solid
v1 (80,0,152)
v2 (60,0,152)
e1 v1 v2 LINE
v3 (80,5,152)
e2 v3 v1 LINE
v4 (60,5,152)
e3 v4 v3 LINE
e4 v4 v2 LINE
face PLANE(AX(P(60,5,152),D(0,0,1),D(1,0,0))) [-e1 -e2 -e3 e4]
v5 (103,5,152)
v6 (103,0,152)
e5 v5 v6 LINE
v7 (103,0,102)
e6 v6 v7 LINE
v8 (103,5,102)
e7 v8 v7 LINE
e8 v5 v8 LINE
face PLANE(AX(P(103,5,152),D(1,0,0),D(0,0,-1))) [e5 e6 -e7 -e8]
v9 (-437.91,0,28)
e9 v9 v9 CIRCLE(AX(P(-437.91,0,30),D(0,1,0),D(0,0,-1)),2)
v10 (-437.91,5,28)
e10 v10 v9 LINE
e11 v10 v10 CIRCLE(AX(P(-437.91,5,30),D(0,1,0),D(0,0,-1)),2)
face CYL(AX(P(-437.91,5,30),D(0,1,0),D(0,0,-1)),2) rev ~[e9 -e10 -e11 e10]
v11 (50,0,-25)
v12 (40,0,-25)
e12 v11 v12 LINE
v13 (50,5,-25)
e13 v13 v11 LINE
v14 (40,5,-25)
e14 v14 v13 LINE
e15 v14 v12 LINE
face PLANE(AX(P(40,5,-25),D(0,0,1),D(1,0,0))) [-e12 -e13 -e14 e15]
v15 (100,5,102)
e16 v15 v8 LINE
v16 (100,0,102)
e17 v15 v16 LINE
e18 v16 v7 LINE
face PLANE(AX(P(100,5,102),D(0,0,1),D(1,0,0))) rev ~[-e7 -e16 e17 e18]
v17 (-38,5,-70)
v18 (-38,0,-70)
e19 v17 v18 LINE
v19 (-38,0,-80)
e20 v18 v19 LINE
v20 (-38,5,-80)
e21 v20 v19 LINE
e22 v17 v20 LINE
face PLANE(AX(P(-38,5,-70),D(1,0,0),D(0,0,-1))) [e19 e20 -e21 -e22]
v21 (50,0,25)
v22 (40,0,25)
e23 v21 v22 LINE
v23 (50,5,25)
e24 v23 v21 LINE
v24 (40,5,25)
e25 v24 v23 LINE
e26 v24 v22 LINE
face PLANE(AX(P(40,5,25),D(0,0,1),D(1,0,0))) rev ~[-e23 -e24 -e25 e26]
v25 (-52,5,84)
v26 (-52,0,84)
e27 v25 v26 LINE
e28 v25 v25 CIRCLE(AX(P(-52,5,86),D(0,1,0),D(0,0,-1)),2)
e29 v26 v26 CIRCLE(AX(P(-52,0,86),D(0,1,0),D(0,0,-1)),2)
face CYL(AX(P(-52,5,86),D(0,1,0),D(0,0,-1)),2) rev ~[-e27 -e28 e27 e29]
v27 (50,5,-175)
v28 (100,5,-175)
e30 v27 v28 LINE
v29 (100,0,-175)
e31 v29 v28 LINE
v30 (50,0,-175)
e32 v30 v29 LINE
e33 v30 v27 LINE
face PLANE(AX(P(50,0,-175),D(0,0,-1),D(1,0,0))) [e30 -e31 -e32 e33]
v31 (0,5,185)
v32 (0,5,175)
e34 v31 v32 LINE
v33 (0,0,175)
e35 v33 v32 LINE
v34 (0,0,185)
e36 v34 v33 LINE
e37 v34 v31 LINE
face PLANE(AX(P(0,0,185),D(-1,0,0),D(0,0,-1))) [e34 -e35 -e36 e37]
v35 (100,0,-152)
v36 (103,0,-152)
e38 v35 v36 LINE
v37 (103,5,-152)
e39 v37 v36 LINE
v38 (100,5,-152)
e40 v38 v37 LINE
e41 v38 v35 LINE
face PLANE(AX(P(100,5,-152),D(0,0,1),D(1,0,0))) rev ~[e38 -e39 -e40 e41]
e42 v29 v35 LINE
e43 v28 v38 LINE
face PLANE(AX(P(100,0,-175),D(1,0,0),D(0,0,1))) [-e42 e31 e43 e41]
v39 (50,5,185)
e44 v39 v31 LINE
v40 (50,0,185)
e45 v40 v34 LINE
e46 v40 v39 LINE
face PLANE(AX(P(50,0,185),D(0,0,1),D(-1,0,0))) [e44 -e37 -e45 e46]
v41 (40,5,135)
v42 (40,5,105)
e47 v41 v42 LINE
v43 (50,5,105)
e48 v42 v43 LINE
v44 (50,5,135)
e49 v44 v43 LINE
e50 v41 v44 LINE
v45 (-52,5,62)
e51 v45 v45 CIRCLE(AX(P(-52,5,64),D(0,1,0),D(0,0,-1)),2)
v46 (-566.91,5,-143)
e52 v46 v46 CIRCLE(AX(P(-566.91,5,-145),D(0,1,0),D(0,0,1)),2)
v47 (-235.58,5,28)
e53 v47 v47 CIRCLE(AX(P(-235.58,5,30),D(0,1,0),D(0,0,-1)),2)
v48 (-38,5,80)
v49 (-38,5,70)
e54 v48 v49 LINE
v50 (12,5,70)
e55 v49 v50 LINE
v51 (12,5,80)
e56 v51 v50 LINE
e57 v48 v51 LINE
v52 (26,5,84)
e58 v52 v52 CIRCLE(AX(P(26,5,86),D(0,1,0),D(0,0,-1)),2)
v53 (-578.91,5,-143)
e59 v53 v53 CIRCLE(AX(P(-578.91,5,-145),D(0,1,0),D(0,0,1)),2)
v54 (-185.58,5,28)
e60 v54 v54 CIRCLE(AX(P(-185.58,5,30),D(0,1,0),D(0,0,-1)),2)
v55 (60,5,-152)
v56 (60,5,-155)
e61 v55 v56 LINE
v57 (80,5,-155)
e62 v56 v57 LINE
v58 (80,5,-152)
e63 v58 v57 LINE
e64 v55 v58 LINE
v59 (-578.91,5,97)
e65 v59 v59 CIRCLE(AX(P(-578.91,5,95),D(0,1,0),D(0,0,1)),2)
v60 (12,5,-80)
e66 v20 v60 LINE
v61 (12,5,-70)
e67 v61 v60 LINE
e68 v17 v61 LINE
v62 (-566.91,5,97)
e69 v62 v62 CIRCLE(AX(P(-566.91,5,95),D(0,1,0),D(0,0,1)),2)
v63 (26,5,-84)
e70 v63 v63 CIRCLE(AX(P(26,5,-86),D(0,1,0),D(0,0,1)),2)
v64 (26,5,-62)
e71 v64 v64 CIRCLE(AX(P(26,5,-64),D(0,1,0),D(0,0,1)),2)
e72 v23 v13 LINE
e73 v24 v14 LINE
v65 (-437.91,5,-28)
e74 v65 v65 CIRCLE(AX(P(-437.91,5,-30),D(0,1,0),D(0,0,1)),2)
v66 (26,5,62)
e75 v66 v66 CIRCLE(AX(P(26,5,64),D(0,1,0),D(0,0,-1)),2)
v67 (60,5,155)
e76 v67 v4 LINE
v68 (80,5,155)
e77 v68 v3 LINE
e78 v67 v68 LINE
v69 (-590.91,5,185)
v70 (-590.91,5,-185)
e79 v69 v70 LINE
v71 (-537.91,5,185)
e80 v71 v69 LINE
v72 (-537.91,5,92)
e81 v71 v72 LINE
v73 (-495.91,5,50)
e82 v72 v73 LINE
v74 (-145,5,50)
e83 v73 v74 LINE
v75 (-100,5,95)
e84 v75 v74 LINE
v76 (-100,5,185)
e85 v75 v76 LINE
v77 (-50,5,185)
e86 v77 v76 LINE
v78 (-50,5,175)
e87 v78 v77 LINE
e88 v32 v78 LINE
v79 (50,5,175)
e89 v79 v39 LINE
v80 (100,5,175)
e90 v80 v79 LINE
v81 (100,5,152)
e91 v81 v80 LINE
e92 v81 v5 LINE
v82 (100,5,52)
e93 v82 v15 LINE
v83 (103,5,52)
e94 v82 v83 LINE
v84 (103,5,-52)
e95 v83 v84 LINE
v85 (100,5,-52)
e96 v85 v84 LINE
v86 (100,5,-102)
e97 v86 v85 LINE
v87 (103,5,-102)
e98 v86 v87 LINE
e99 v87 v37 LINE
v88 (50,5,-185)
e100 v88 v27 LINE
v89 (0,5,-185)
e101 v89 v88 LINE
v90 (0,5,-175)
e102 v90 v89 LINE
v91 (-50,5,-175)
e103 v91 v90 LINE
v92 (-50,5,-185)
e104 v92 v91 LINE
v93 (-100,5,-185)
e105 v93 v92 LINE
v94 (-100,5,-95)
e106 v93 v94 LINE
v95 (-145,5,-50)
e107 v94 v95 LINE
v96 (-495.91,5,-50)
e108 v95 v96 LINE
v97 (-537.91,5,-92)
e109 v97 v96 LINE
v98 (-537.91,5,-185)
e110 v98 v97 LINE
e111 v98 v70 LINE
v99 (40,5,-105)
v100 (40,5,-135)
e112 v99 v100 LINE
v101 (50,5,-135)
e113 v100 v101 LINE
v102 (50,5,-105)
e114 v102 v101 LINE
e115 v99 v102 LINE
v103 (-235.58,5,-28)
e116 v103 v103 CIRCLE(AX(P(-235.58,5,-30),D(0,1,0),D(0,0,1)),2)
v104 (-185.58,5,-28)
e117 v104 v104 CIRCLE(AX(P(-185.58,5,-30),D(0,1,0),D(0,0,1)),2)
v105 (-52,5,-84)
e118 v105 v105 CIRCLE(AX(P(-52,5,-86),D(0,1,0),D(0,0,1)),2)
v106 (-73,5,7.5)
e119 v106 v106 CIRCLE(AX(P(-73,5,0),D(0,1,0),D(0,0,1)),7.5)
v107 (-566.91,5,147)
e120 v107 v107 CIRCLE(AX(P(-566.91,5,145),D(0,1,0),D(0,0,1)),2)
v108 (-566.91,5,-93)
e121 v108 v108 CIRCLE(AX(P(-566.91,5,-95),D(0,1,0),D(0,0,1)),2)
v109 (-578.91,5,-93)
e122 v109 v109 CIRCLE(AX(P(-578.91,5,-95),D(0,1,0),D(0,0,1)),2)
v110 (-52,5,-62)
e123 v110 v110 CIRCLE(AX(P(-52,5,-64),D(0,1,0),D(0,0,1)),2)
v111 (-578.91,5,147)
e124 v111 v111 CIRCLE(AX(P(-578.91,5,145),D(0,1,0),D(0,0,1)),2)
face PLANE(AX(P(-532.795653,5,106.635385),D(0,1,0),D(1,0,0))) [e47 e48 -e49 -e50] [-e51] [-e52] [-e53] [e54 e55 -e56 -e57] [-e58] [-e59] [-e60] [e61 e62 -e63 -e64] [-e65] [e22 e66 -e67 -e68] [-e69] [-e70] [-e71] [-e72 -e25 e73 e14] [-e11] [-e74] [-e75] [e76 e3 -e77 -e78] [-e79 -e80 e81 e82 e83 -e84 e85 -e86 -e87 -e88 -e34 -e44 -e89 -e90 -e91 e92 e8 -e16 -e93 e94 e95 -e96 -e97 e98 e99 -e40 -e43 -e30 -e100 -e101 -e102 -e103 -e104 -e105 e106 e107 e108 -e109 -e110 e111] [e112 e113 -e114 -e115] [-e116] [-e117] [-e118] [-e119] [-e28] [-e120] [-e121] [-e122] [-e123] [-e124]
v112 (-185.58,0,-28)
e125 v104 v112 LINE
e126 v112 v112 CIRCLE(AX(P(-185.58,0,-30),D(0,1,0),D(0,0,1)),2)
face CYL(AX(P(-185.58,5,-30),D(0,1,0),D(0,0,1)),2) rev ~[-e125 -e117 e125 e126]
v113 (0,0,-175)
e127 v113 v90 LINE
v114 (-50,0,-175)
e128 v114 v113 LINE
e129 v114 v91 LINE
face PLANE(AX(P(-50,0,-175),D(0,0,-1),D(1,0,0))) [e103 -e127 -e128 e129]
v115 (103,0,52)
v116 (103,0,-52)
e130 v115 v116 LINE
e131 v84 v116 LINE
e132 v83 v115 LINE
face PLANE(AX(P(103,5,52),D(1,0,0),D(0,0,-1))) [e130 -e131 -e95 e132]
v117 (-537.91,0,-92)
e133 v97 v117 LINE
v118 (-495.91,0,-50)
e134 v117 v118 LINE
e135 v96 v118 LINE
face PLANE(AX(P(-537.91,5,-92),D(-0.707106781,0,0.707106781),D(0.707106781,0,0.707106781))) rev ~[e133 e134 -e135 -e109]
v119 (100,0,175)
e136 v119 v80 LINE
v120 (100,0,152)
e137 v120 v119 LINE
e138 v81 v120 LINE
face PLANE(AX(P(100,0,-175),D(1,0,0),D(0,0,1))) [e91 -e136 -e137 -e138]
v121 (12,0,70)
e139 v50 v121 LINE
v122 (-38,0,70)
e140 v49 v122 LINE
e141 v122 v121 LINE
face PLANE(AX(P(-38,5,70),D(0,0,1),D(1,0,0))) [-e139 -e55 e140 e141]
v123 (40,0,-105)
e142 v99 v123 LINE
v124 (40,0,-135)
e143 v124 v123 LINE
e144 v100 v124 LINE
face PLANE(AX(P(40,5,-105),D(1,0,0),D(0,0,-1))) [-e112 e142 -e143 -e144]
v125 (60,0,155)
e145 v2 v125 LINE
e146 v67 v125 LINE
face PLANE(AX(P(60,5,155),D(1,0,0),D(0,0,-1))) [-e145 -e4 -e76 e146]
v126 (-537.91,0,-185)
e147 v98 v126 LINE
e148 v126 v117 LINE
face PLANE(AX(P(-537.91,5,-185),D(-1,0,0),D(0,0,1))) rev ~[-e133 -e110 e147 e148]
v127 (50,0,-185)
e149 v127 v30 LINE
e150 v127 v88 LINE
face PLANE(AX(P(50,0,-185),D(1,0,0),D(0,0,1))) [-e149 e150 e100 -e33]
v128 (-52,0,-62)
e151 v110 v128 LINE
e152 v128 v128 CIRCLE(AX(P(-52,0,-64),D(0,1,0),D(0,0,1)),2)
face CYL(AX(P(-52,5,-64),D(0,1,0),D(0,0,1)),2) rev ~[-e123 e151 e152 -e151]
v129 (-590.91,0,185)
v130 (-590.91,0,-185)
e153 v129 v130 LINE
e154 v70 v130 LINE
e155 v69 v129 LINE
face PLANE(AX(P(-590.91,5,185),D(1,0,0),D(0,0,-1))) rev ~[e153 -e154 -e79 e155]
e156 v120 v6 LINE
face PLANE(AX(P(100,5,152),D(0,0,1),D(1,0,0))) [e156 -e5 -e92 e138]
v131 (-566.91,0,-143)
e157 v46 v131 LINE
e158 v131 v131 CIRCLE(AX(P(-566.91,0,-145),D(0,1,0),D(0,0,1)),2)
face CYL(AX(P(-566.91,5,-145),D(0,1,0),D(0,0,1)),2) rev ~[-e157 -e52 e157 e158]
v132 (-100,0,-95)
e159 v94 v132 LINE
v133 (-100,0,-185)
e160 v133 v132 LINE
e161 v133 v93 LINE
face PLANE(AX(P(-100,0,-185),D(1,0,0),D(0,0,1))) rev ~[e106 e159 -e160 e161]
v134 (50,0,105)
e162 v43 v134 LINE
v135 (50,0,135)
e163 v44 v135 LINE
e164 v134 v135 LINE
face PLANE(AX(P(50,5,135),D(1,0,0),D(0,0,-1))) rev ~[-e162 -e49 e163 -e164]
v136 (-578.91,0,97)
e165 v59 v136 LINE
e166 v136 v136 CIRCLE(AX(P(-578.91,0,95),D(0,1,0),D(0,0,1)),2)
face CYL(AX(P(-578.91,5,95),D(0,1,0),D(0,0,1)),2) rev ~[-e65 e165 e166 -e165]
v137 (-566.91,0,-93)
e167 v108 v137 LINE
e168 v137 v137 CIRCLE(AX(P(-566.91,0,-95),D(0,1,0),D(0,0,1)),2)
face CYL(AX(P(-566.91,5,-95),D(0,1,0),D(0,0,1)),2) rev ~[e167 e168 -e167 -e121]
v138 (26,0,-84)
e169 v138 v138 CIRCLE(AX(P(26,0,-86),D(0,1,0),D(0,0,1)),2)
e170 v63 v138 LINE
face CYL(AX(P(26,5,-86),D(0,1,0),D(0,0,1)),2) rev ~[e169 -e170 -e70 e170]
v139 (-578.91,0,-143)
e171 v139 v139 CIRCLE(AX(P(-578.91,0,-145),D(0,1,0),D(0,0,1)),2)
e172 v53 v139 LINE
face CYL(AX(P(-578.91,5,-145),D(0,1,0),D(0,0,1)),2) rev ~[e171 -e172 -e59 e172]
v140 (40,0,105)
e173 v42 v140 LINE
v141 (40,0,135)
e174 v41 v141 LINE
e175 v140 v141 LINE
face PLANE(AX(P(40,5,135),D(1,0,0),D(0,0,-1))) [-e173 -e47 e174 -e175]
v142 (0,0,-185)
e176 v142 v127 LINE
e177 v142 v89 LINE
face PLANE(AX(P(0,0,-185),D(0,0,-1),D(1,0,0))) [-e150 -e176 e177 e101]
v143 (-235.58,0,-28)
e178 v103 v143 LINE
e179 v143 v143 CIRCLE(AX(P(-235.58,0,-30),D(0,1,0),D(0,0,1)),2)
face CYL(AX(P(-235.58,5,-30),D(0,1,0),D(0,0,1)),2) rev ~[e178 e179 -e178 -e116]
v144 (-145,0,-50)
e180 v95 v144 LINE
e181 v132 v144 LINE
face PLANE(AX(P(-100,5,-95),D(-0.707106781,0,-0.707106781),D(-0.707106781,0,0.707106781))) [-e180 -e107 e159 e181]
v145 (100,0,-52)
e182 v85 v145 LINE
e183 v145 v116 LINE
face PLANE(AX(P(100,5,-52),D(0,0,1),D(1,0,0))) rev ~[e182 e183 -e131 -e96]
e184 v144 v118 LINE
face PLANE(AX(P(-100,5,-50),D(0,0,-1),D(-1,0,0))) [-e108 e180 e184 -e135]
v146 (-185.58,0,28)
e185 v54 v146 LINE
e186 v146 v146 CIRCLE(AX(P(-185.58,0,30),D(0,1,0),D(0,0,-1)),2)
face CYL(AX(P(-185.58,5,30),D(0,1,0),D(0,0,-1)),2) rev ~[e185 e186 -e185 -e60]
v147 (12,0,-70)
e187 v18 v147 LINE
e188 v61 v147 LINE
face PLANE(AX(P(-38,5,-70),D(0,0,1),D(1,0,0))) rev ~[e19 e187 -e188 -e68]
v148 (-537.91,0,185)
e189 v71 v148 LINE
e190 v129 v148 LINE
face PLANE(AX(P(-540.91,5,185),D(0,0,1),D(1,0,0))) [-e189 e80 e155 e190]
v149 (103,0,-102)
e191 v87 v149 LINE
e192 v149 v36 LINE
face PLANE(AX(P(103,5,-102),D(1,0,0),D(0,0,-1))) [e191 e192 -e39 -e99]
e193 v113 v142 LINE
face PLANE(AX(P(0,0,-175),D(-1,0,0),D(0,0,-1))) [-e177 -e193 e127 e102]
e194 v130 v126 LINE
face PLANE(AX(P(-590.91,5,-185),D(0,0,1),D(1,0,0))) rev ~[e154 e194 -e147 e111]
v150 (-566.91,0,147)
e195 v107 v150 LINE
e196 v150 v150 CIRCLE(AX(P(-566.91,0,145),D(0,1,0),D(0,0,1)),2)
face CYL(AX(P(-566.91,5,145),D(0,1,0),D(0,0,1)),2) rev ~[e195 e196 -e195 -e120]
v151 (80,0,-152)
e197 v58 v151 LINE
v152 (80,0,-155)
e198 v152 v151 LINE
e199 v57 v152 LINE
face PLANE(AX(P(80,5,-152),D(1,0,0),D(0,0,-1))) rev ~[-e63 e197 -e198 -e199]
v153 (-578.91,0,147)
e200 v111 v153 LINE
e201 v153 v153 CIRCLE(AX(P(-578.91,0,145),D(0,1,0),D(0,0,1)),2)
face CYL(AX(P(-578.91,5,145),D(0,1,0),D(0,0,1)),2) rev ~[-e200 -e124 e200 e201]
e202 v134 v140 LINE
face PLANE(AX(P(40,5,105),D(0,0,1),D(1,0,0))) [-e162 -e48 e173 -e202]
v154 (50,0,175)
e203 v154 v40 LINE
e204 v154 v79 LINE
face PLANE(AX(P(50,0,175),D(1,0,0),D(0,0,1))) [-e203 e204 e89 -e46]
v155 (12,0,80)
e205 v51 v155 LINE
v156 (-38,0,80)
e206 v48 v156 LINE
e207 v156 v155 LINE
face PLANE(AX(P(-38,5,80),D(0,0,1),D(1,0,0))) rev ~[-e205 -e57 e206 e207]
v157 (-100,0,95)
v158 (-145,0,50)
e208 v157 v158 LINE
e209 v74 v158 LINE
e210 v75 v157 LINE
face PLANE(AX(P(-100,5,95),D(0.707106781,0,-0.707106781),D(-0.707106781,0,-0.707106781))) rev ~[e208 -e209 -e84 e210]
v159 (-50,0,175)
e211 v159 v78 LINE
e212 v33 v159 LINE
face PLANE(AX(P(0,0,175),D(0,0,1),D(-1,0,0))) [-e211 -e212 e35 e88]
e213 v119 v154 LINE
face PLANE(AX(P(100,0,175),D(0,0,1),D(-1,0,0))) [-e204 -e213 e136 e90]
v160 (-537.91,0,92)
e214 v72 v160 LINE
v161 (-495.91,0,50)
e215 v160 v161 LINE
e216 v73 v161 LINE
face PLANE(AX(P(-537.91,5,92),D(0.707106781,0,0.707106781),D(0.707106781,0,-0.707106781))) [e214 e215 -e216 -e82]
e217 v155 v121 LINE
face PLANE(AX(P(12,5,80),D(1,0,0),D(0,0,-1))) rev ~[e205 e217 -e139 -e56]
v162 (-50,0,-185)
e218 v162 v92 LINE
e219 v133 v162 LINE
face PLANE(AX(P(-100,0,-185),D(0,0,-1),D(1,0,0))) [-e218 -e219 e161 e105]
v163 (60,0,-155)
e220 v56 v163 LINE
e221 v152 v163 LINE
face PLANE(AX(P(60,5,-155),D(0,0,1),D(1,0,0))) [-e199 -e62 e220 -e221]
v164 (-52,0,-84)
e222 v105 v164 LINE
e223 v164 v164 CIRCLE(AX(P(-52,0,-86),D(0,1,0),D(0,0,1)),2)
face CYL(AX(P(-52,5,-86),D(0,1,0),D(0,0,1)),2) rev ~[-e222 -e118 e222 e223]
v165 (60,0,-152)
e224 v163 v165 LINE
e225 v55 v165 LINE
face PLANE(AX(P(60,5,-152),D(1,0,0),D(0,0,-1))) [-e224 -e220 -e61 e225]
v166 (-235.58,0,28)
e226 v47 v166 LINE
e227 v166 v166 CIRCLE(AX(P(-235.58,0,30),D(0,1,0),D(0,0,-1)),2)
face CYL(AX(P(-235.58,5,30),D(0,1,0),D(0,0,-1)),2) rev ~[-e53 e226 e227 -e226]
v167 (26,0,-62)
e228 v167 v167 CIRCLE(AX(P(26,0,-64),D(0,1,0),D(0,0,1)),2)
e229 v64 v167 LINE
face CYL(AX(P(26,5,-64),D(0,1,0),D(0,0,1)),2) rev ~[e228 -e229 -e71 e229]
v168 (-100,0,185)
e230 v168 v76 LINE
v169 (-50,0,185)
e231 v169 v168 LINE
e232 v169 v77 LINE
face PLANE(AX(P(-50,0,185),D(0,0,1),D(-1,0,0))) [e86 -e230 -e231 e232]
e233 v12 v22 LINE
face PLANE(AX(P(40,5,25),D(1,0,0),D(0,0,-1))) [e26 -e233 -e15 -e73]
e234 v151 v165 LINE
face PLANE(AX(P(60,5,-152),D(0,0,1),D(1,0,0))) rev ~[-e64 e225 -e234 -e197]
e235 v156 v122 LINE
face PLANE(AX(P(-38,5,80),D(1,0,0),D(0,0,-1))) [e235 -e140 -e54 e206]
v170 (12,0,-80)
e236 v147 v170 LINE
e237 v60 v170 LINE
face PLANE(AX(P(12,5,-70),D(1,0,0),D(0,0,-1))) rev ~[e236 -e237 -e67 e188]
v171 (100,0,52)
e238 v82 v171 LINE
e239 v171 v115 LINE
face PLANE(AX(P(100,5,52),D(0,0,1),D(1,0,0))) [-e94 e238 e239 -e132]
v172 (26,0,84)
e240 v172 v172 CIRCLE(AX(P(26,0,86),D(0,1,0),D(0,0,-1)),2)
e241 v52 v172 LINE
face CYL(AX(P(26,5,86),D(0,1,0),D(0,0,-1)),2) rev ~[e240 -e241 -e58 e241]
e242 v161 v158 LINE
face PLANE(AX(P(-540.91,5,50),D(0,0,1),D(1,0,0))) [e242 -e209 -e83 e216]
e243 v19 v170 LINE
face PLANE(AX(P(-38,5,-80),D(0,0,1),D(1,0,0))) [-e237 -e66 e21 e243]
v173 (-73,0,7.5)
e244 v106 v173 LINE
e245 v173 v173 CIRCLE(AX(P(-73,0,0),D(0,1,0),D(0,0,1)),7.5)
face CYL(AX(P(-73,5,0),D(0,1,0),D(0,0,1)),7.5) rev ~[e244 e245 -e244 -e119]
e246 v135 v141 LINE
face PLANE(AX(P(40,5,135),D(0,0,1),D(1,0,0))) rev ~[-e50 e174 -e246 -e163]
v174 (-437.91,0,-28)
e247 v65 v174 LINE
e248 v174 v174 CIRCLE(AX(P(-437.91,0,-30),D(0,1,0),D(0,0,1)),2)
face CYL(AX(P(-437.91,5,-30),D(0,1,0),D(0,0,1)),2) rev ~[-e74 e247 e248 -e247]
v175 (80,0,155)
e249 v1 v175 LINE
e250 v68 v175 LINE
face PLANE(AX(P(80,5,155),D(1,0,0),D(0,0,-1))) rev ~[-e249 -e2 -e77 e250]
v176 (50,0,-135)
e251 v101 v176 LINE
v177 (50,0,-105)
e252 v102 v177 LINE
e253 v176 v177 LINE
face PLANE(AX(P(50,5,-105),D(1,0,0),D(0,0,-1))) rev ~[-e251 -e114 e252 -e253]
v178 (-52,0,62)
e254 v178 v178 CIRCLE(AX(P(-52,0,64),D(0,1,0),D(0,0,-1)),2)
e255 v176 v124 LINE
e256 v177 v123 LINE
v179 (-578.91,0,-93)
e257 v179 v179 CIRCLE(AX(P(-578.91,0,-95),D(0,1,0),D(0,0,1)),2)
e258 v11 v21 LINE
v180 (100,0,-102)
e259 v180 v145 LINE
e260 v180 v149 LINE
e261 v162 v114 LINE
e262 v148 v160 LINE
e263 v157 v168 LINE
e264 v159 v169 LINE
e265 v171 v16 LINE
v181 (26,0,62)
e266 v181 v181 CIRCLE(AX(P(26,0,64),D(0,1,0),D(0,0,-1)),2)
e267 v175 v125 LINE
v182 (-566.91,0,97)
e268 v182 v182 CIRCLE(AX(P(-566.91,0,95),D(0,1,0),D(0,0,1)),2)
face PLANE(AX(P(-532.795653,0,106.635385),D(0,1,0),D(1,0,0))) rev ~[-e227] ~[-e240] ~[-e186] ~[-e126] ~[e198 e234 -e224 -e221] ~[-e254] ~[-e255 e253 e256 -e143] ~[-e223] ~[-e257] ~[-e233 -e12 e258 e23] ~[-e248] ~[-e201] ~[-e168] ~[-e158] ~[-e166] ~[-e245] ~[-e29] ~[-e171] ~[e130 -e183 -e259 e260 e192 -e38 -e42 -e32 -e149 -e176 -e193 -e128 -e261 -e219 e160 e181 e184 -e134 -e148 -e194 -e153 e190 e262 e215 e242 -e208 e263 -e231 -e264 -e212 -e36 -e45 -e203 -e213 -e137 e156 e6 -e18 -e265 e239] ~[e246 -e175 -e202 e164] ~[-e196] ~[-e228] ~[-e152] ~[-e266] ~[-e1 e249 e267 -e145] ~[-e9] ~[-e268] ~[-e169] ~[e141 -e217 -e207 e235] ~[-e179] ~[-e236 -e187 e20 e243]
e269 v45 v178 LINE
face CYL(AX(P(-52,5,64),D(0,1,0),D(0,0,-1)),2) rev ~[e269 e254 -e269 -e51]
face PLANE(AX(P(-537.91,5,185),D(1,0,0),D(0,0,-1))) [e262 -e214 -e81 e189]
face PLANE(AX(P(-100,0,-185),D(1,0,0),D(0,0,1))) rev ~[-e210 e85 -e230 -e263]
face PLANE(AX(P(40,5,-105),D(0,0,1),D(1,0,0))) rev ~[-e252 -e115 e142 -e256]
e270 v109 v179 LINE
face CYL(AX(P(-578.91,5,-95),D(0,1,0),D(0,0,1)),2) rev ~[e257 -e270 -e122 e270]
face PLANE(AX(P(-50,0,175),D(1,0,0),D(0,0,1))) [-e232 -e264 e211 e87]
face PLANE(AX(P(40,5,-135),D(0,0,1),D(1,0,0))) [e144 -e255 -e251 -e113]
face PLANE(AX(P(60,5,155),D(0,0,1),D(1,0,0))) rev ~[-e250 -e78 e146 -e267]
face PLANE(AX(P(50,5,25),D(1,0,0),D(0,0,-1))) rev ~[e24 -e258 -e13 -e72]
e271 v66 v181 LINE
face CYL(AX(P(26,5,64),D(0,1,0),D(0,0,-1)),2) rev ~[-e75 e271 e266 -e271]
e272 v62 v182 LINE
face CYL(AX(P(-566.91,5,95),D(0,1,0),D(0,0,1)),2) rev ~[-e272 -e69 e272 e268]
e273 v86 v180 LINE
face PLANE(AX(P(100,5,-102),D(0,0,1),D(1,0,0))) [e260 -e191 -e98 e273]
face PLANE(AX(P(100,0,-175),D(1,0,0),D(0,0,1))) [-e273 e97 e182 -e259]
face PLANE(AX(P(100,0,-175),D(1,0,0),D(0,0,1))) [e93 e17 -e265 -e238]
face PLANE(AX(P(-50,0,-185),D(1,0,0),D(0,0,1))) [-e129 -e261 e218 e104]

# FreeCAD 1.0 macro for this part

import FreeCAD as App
import Part
import Sketcher
from FreeCAD import Vector
Q = App.Units.Quantity

doc = App.newDocument("Part")
body = doc.addObject("PartDesign::Body", "Body")

sketch1 = doc.addObject("Sketcher::SketchObject", "Sketch")
body.addObject(sketch1)
sketch1.AttachmentSupport = (doc.XZ_Plane, [""])
sketch1.MapMode = "FlatFace"
sketch1.addGeometry([
    Part.LineSegment(Vector(0, -175, 0), Vector(-50, -175, 0)),
    Part.LineSegment(Vector(-50, -175, 0), Vector(-50, -185, 0)),
    Part.LineSegment(Vector(-50, -185, 0), Vector(-100, -185, 0)),
    Part.LineSegment(Vector(-100, -185, 0), Vector(-100, 185, 0)),
    Part.LineSegment(Vector(-100, 185, 0), Vector(-50, 185, 0)),
    Part.LineSegment(Vector(-50, 185, 0), Vector(-50, 175, 0)),
    Part.LineSegment(Vector(-50, 175, 0), Vector(0, 175, 0)),
    Part.LineSegment(Vector(0, 175, 0), Vector(0, 185, 0)),
    Part.LineSegment(Vector(0, 185, 0), Vector(50, 185, 0)),
    Part.LineSegment(Vector(50, 185, 0), Vector(50, 175, 0)),
    Part.LineSegment(Vector(50, 175, 0), Vector(100, 175, 0)),
    Part.LineSegment(Vector(100, 175, 0), Vector(100, -175, 0)),
    Part.LineSegment(Vector(100, -175, 0), Vector(50, -175, 0)),
    Part.LineSegment(Vector(50, -175, 0), Vector(50, -185, 0)),
    Part.LineSegment(Vector(50, -185, 0), Vector(0, -185, 0)),
    Part.LineSegment(Vector(0, -185, 0), Vector(0, -175, 0)),
], False)
sketch1.addConstraint([
    Sketcher.Constraint("Coincident", 0, 2, 1, 1),
    Sketcher.Constraint("Coincident", 1, 2, 2, 1),
    Sketcher.Constraint("Coincident", 2, 2, 3, 1),
    Sketcher.Constraint("Coincident", 3, 2, 4, 1),
    Sketcher.Constraint("Coincident", 4, 2, 5, 1),
    Sketcher.Constraint("Coincident", 5, 2, 6, 1),
    Sketcher.Constraint("Coincident", 6, 2, 7, 1),
    Sketcher.Constraint("Coincident", 7, 2, 8, 1),
    Sketcher.Constraint("Coincident", 8, 2, 9, 1),
    Sketcher.Constraint("Coincident", 9, 2, 10, 1),
    Sketcher.Constraint("Coincident", 10, 2, 11, 1),
    Sketcher.Constraint("Coincident", 11, 2, 12, 1),
    Sketcher.Constraint("Coincident", 12, 2, 13, 1),
    Sketcher.Constraint("Coincident", 13, 2, 14, 1),
    Sketcher.Constraint("Coincident", 14, 2, 15, 1),
    Sketcher.Constraint("Coincident", 15, 2, 0, 1),
    Sketcher.Constraint("Horizontal", 0),
    Sketcher.Constraint("Vertical", 1),
    Sketcher.Constraint("Horizontal", 2),
    Sketcher.Constraint("Vertical", 3),
    Sketcher.Constraint("Horizontal", 4),
    Sketcher.Constraint("Vertical", 5),
    Sketcher.Constraint("Horizontal", 6),
    Sketcher.Constraint("Vertical", 7),
    Sketcher.Constraint("Horizontal", 8),
    Sketcher.Constraint("Vertical", 9),
    Sketcher.Constraint("Horizontal", 10),
    Sketcher.Constraint("Vertical", 11),
    Sketcher.Constraint("Horizontal", 12),
    Sketcher.Constraint("Vertical", 13),
    Sketcher.Constraint("Horizontal", 14),
    Sketcher.Constraint("Vertical", 15),
    Sketcher.Constraint("Symmetric", 1, 2, 8, 2, -1, 1),
    Sketcher.Constraint("Symmetric", 5, 2, 12, 2, -1, 1),
    Sketcher.Constraint("Symmetric", 7, 2, 14, 2, -1, 1),
    Sketcher.Constraint("Symmetric", 4, 2, 8, 2, -2),
    Sketcher.Constraint("Symmetric", 6, 2, 15, 2, -1),
    Sketcher.Constraint("Horizontal", 6, 2, 9, 2),
    Sketcher.Constraint("Equal", 0, 2),
    Sketcher.Constraint("Equal", 8, 10),
    Sketcher.Constraint("DistanceX", 0, 2, 0, 1, Q("50 mm")),
    Sketcher.Constraint("DistanceY", 1, 2, 1, 1, Q("10 mm")),
    Sketcher.Constraint("DistanceY", 3, 1, 3, 2, Q("370 mm")),
])
pad1 = doc.addObject("PartDesign::Pad", "Pad")
body.addObject(pad1)
pad1.Profile = sketch1
pad1.Length = 5
pad1.Reversed = True

sketch2 = doc.addObject("Sketcher::SketchObject", "Sketch001")
body.addObject(sketch2)
sketch2.AttachmentSupport = (doc.XZ_Plane, [""])
sketch2.MapMode = "FlatFace"
sketch2.AttachmentOffset = App.Placement(Vector(0, 0, -5), App.Rotation())
sketch2.addGeometry([
    Part.LineSegment(Vector(60, -155, 0), Vector(60, -152, 0)),
    Part.LineSegment(Vector(60, -152, 0), Vector(80, -152, 0)),
    Part.LineSegment(Vector(80, -152, 0), Vector(80, -155, 0)),
    Part.LineSegment(Vector(80, -155, 0), Vector(60, -155, 0)),
    Part.LineSegment(Vector(60, 152, 0), Vector(60, 155, 0)),
    Part.LineSegment(Vector(60, 155, 0), Vector(80, 155, 0)),
    Part.LineSegment(Vector(80, 155, 0), Vector(80, 152, 0)),
    Part.LineSegment(Vector(80, 152, 0), Vector(60, 152, 0)),
    Part.LineSegment(Vector(40, -135, 0), Vector(40, -105, 0)),
    Part.LineSegment(Vector(40, -105, 0), Vector(50, -105, 0)),
    Part.LineSegment(Vector(50, -105, 0), Vector(50, -135, 0)),
    Part.LineSegment(Vector(50, -135, 0), Vector(40, -135, 0)),
    Part.LineSegment(Vector(40, 105, 0), Vector(40, 135, 0)),
    Part.LineSegment(Vector(40, 135, 0), Vector(50, 135, 0)),
    Part.LineSegment(Vector(50, 135, 0), Vector(50, 105, 0)),
    Part.LineSegment(Vector(50, 105, 0), Vector(40, 105, 0)),
    Part.LineSegment(Vector(40, -25, 0), Vector(40, 25, 0)),
    Part.LineSegment(Vector(40, 25, 0), Vector(50, 25, 0)),
    Part.LineSegment(Vector(50, 25, 0), Vector(50, -25, 0)),
    Part.LineSegment(Vector(50, -25, 0), Vector(40, -25, 0)),
], False)
sketch2.addConstraint([
    Sketcher.Constraint("Coincident", 0, 2, 1, 1),
    Sketcher.Constraint("Coincident", 1, 2, 2, 1),
    Sketcher.Constraint("Coincident", 2, 2, 3, 1),
    Sketcher.Constraint("Coincident", 3, 2, 0, 1),
    Sketcher.Constraint("Coincident", 4, 2, 5, 1),
    Sketcher.Constraint("Coincident", 5, 2, 6, 1),
    Sketcher.Constraint("Coincident", 6, 2, 7, 1),
    Sketcher.Constraint("Coincident", 7, 2, 4, 1),
    Sketcher.Constraint("Coincident", 8, 2, 9, 1),
    Sketcher.Constraint("Coincident", 9, 2, 10, 1),
    Sketcher.Constraint("Coincident", 10, 2, 11, 1),
    Sketcher.Constraint("Coincident", 11, 2, 8, 1),
    Sketcher.Constraint("Coincident", 12, 2, 13, 1),
    Sketcher.Constraint("Coincident", 13, 2, 14, 1),
    Sketcher.Constraint("Coincident", 14, 2, 15, 1),
    Sketcher.Constraint("Coincident", 15, 2, 12, 1),
    Sketcher.Constraint("Coincident", 16, 2, 17, 1),
    Sketcher.Constraint("Coincident", 17, 2, 18, 1),
    Sketcher.Constraint("Coincident", 18, 2, 19, 1),
    Sketcher.Constraint("Coincident", 19, 2, 16, 1),
    Sketcher.Constraint("Vertical", 0),
    Sketcher.Constraint("Horizontal", 1),
    Sketcher.Constraint("Vertical", 2),
    Sketcher.Constraint("Horizontal", 3),
    Sketcher.Constraint("Vertical", 4),
    Sketcher.Constraint("Horizontal", 5),
    Sketcher.Constraint("Vertical", 6),
    Sketcher.Constraint("Horizontal", 7),
    Sketcher.Constraint("Vertical", 8),
    Sketcher.Constraint("Horizontal", 9),
    Sketcher.Constraint("Vertical", 10),
    Sketcher.Constraint("Horizontal", 11),
    Sketcher.Constraint("Vertical", 12),
    Sketcher.Constraint("Horizontal", 13),
    Sketcher.Constraint("Vertical", 14),
    Sketcher.Constraint("Horizontal", 15),
    Sketcher.Constraint("Vertical", 16),
    Sketcher.Constraint("Horizontal", 17),
    Sketcher.Constraint("Vertical", 18),
    Sketcher.Constraint("Horizontal", 19),
    Sketcher.Constraint("Symmetric", 3, 2, 4, 2, -1),
    Sketcher.Constraint("Symmetric", 1, 2, 6, 2, -1),
    Sketcher.Constraint("Symmetric", 11, 2, 12, 2, -1),
    Sketcher.Constraint("Symmetric", 9, 2, 14, 2, -1),
    Sketcher.Constraint("Vertical", 15, 2, 16, 2),
    Sketcher.Constraint("Vertical", 14, 2, 17, 2),
    Sketcher.Constraint("DistanceX", 1, 1, 1, 2, Q("20 mm")),
    Sketcher.Constraint("DistanceX", 9, 1, 9, 2, Q("10 mm")),
    Sketcher.Constraint("DistanceY", 0, 1, 0, 2, Q("3 mm")),
    Sketcher.Constraint("DistanceY", 8, 1, 8, 2, Q("30 mm")),
    Sketcher.Constraint("DistanceY", 16, 1, 16, 2, Q("50 mm")),
    Sketcher.Constraint("DistanceX", -1, 1, 0, 2, Q("60 mm")),
    Sketcher.Constraint("DistanceY", 0, 2, -1, 1, Q("152 mm")),
    Sketcher.Constraint("DistanceX", -1, 1, 8, 2, Q("40 mm")),
    Sketcher.Constraint("DistanceY", 8, 2, -1, 1, Q("105 mm")),
    Sketcher.Constraint("DistanceY", -1, 1, 16, 2, Q("25 mm")),
])
pocket1 = doc.addObject("PartDesign::Pocket", "Pocket")
body.addObject(pocket1)
pocket1.Profile = sketch2
pocket1.Type = "ThroughAll"
pocket1.Reversed = True

sketch3 = doc.addObject("Sketcher::SketchObject", "Sketch002")
body.addObject(sketch3)
sketch3.AttachmentSupport = (doc.XZ_Plane, [""])
sketch3.MapMode = "FlatFace"
sketch3.AttachmentOffset = App.Placement(Vector(0, 0, -5), App.Rotation())
sketch3.addGeometry([
    Part.LineSegment(Vector(-100, -50, 0), Vector(-541, -50, 0)),
    Part.LineSegment(Vector(-541, -50, 0), Vector(-541, -185, 0)),
    Part.LineSegment(Vector(-541, -185, 0), Vector(-591, -185, 0)),
    Part.LineSegment(Vector(-591, -185, 0), Vector(-591, 185, 0)),
    Part.LineSegment(Vector(-591, 185, 0), Vector(-541, 185, 0)),
    Part.LineSegment(Vector(-541, 185, 0), Vector(-541, 50, 0)),
    Part.LineSegment(Vector(-541, 50, 0), Vector(-100, 50, 0)),
    Part.LineSegment(Vector(-100, 50, 0), Vector(-100, -50, 0)),
], False)
sketch3.addConstraint([
    Sketcher.Constraint("Coincident", 0, 2, 1, 1),
    Sketcher.Constraint("Coincident", 1, 2, 2, 1),
    Sketcher.Constraint("Coincident", 2, 2, 3, 1),
    Sketcher.Constraint("Coincident", 3, 2, 4, 1),
    Sketcher.Constraint("Coincident", 4, 2, 5, 1),
    Sketcher.Constraint("Coincident", 5, 2, 6, 1),
    Sketcher.Constraint("Coincident", 6, 2, 7, 1),
    Sketcher.Constraint("Coincident", 7, 2, 0, 1),
    Sketcher.Constraint("Horizontal", 0),
    Sketcher.Constraint("Vertical", 1),
    Sketcher.Constraint("Horizontal", 2),
    Sketcher.Constraint("Vertical", 3),
    Sketcher.Constraint("Horizontal", 4),
    Sketcher.Constraint("Vertical", 5),
    Sketcher.Constraint("Horizontal", 6),
    Sketcher.Constraint("Vertical", 7),
    Sketcher.Constraint("Symmetric", 1, 2, 4, 2, -1),
    Sketcher.Constraint("Equal", 1, 5),
    Sketcher.Constraint("DistanceX", 2, 2, 2, 1, Q("50 mm")),
    Sketcher.Constraint("DistanceY", 1, 2, 1, 1, Q("135 mm")),
    Sketcher.Constraint("DistanceY", 3, 1, 3, 2, Q("370 mm")),
    Sketcher.Constraint("DistanceX", 6, 2, -1, 1, Q("100 mm")),
    Sketcher.Constraint("DistanceX", 0, 2, 0, 1, Q("440.91 mm")),
])
pad2 = doc.addObject("PartDesign::Pad", "Pad001")
body.addObject(pad2)
pad2.Profile = sketch3
pad2.Length = 5

sketch4 = doc.addObject("Sketcher::SketchObject", "Sketch003")
body.addObject(sketch4)
sketch4.AttachmentSupport = (doc.XZ_Plane, [""])
sketch4.MapMode = "FlatFace"
sketch4.AttachmentOffset = App.Placement(Vector(0, 0, -5), App.Rotation())
sketch4.addGeometry([
    Part.Circle(Vector(-578.9, -145, 0), Vector(0, 0, 1), 2),
    Part.Circle(Vector(-578.9, -95, 0), Vector(0, 0, 1), 2),
    Part.Circle(Vector(-566.9, -145, 0), Vector(0, 0, 1), 2),
    Part.Circle(Vector(-566.9, -95, 0), Vector(0, 0, 1), 2),
    Part.Circle(Vector(-578.9, 145, 0), Vector(0, 0, 1), 2),
    Part.Circle(Vector(-578.9, 95, 0), Vector(0, 0, 1), 2),
    Part.Circle(Vector(-566.9, 95, 0), Vector(0, 0, 1), 2),
    Part.Circle(Vector(-566.9, 145, 0), Vector(0, 0, 1), 2),
], False)
sketch4.addConstraint([
    Sketcher.Constraint("Equal", 0, 1),
    Sketcher.Constraint("Equal", 1, 2),
    Sketcher.Constraint("Equal", 2, 3),
    Sketcher.Constraint("Equal", 3, 4),
    Sketcher.Constraint("Equal", 4, 5),
    Sketcher.Constraint("Equal", 5, 6),
    Sketcher.Constraint("Equal", 6, 7),
    Sketcher.Constraint("Symmetric", 0, 3, 4, 3, -1),
    Sketcher.Constraint("Symmetric", 1, 3, 5, 3, -1),
    Sketcher.Constraint("Symmetric", 3, 3, 6, 3, -1),
    Sketcher.Constraint("Symmetric", 2, 3, 7, 3, -1),
    Sketcher.Constraint("Horizontal", 0, 3, 2, 3),
    Sketcher.Constraint("Horizontal", 1, 3, 3, 3),
    Sketcher.Constraint("Vertical", 0, 3, 1, 3),
    Sketcher.Constraint("Vertical", 2, 3, 3, 3),
    Sketcher.Constraint("Diameter", 0, Q("4 mm")),
    Sketcher.Constraint("DistanceY", 0, 3, -1, 1, Q("145 mm")),
    Sketcher.Constraint("DistanceY", 1, 3, -1, 1, Q("95 mm")),
    Sketcher.Constraint("DistanceX", 0, 3, 2, 3, Q("12 mm")),
    Sketcher.Constraint("DistanceX", 0, 3, -1, 1, Q("578.91 mm")),
])
pocket2 = doc.addObject("PartDesign::Pocket", "Pocket001")
body.addObject(pocket2)
pocket2.Profile = sketch4
pocket2.Type = "ThroughAll"
pocket2.Reversed = True

sketch5 = doc.addObject("Sketcher::SketchObject", "Sketch004")
body.addObject(sketch5)
sketch5.AttachmentSupport = (doc.XZ_Plane, [""])
sketch5.MapMode = "FlatFace"
sketch5.AttachmentOffset = App.Placement(Vector(0, 0, -5), App.Rotation())
sketch5.addGeometry([
    Part.LineSegment(Vector(100, 102, 0), Vector(100, 152, 0)),
    Part.LineSegment(Vector(100, 152, 0), Vector(103, 152, 0)),
    Part.LineSegment(Vector(103, 152, 0), Vector(103, 102, 0)),
    Part.LineSegment(Vector(103, 102, 0), Vector(100, 102, 0)),
    Part.LineSegment(Vector(100, -152, 0), Vector(100, -102, 0)),
    Part.LineSegment(Vector(100, -102, 0), Vector(103, -102, 0)),
    Part.LineSegment(Vector(103, -102, 0), Vector(103, -152, 0)),
    Part.LineSegment(Vector(103, -152, 0), Vector(100, -152, 0)),
    Part.LineSegment(Vector(100, -52, 0), Vector(100, 52, 0)),
    Part.LineSegment(Vector(100, 52, 0), Vector(103, 52, 0)),
    Part.LineSegment(Vector(103, 52, 0), Vector(103, -52, 0)),
    Part.LineSegment(Vector(103, -52, 0), Vector(100, -52, 0)),
], False)
sketch5.addConstraint([
    Sketcher.Constraint("Coincident", 0, 2, 1, 1),
    Sketcher.Constraint("Coincident", 1, 2, 2, 1),
    Sketcher.Constraint("Coincident", 2, 2, 3, 1),
    Sketcher.Constraint("Coincident", 3, 2, 0, 1),
    Sketcher.Constraint("Coincident", 4, 2, 5, 1),
    Sketcher.Constraint("Coincident", 5, 2, 6, 1),
    Sketcher.Constraint("Coincident", 6, 2, 7, 1),
    Sketcher.Constraint("Coincident", 7, 2, 4, 1),
    Sketcher.Constraint("Coincident", 8, 2, 9, 1),
    Sketcher.Constraint("Coincident", 9, 2, 10, 1),
    Sketcher.Constraint("Coincident", 10, 2, 11, 1),
    Sketcher.Constraint("Coincident", 11, 2, 8, 1),
    Sketcher.Constraint("Vertical", 0),
    Sketcher.Constraint("Horizontal", 1),
    Sketcher.Constraint("Vertical", 2),
    Sketcher.Constraint("Horizontal", 3),
    Sketcher.Constraint("Vertical", 4),
    Sketcher.Constraint("Horizontal", 5),
    Sketcher.Constraint("Vertical", 6),
    Sketcher.Constraint("Horizontal", 7),
    Sketcher.Constraint("Vertical", 8),
    Sketcher.Constraint("Horizontal", 9),
    Sketcher.Constraint("Vertical", 10),
    Sketcher.Constraint("Horizontal", 11),
    Sketcher.Constraint("Symmetric", 3, 2, 4, 2, -1),
    Sketcher.Constraint("Symmetric", 1, 2, 6, 2, -1),
    Sketcher.Constraint("Vertical", 7, 2, 8, 2),
    Sketcher.Constraint("Vertical", 6, 2, 9, 2),
    Sketcher.Constraint("DistanceX", 1, 1, 1, 2, Q("3 mm")),
    Sketcher.Constraint("DistanceY", 0, 1, 0, 2, Q("50 mm")),
    Sketcher.Constraint("DistanceY", 8, 1, 8, 2, Q("104 mm")),
    Sketcher.Constraint("DistanceX", -1, 1, 0, 2, Q("100 mm")),
    Sketcher.Constraint("DistanceY", -1, 1, 0, 2, Q("152 mm")),
    Sketcher.Constraint("DistanceY", -1, 1, 8, 2, Q("52 mm")),
])
pad3 = doc.addObject("PartDesign::Pad", "Pad002")
body.addObject(pad3)
pad3.Profile = sketch5
pad3.Length = 5

sketch6 = doc.addObject("Sketcher::SketchObject", "Sketch005")
body.addObject(sketch6)
sketch6.AttachmentSupport = (doc.XZ_Plane, [""])
sketch6.MapMode = "FlatFace"
sketch6.AttachmentOffset = App.Placement(Vector(0, 0, -5), App.Rotation())
sketch6.addGeometry([
    Part.LineSegment(Vector(-540.9, 185, 0), Vector(-537.9, 185, 0)),
    Part.LineSegment(Vector(-537.9, 185, 0), Vector(-537.9, 92, 0)),
    Part.LineSegment(Vector(-537.9, 92, 0), Vector(-495.9, 50, 0)),
    Part.LineSegment(Vector(-495.9, 50, 0), Vector(-540.9, 50, 0)),
    Part.LineSegment(Vector(-540.9, 50, 0), Vector(-540.9, 185, 0)),
    Part.LineSegment(Vector(-495.9, -50, 0), Vector(-537.9, -92, 0)),
    Part.LineSegment(Vector(-537.9, -92, 0), Vector(-537.9, -185, 0)),
    Part.LineSegment(Vector(-537.9, -185, 0), Vector(-540.9, -185, 0)),
    Part.LineSegment(Vector(-540.9, -185, 0), Vector(-540.9, -50, 0)),
    Part.LineSegment(Vector(-540.9, -50, 0), Vector(-495.9, -50, 0)),
    Part.LineSegment(Vector(-100, -95, 0), Vector(-145, -50, 0)),
    Part.LineSegment(Vector(-145, -50, 0), Vector(-100, -50, 0)),
    Part.LineSegment(Vector(-100, -50, 0), Vector(-100, -95, 0)),
    Part.LineSegment(Vector(-145, 50, 0), Vector(-100, 95, 0)),
    Part.LineSegment(Vector(-100, 95, 0), Vector(-100, 50, 0)),
    Part.LineSegment(Vector(-100, 50, 0), Vector(-145, 50, 0)),
], False)
sketch6.addConstraint([
    Sketcher.Constraint("Coincident", 0, 2, 1, 1),
    Sketcher.Constraint("Coincident", 1, 2, 2, 1),
    Sketcher.Constraint("Coincident", 2, 2, 3, 1),
    Sketcher.Constraint("Coincident", 3, 2, 4, 1),
    Sketcher.Constraint("Coincident", 4, 2, 0, 1),
    Sketcher.Constraint("Coincident", 5, 2, 6, 1),
    Sketcher.Constraint("Coincident", 6, 2, 7, 1),
    Sketcher.Constraint("Coincident", 7, 2, 8, 1),
    Sketcher.Constraint("Coincident", 8, 2, 9, 1),
    Sketcher.Constraint("Coincident", 9, 2, 5, 1),
    Sketcher.Constraint("Coincident", 10, 2, 11, 1),
    Sketcher.Constraint("Coincident", 11, 2, 12, 1),
    Sketcher.Constraint("Coincident", 12, 2, 10, 1),
    Sketcher.Constraint("Coincident", 13, 2, 14, 1),
    Sketcher.Constraint("Coincident", 14, 2, 15, 1),
    Sketcher.Constraint("Coincident", 15, 2, 13, 1),
    Sketcher.Constraint("Horizontal", 0),
    Sketcher.Constraint("Vertical", 1),
    Sketcher.Constraint("Horizontal", 3),
    Sketcher.Constraint("Vertical", 4),
    Sketcher.Constraint("Vertical", 6),
    Sketcher.Constraint("Horizontal", 7),
    Sketcher.Constraint("Vertical", 8),
    Sketcher.Constraint("Horizontal", 9),
    Sketcher.Constraint("Horizontal", 11),
    Sketcher.Constraint("Vertical", 12),
    Sketcher.Constraint("Vertical", 14),
    Sketcher.Constraint("Horizontal", 15),
    Sketcher.Constraint("Symmetric", 1, 2, 5, 2, -1),
    Sketcher.Constraint("Symmetric", 4, 2, 7, 2, -1),
    Sketcher.Constraint("Symmetric", 2, 2, 9, 2, -1),
    Sketcher.Constraint("Symmetric", 12, 2, 13, 2, -1),
    Sketcher.Constraint("Symmetric", 10, 2, 15, 2, -1),
    Sketcher.Constraint("Perpendicular", 2, 5),
    Sketcher.Constraint("Perpendicular", 5, 10),
    Sketcher.Constraint("Horizontal", 9, 2, 10, 2),
    Sketcher.Constraint("Equal", 9, 11),
    Sketcher.Constraint("DistanceX", 0, 1, 0, 2, Q("3 mm")),
    Sketcher.Constraint("DistanceX", 3, 2, 3, 1, Q("45 mm")),
    Sketcher.Constraint("DistanceY", 1, 2, 1, 1, Q("93 mm")),
    Sketcher.Constraint("DistanceY", -1, 1, 0, 2, Q("185 mm")),
    Sketcher.Constraint("DistanceX", 10, 2, -1, 1, Q("145 mm")),
    Sketcher.Constraint("DistanceX", 0, 2, -1, 1, Q("537.91 mm")),
])
pad4 = doc.addObject("PartDesign::Pad", "Pad003")
body.addObject(pad4)
pad4.Profile = sketch6
pad4.Length = 5

sketch7 = doc.addObject("Sketcher::SketchObject", "Sketch006")
body.addObject(sketch7)
sketch7.AttachmentSupport = (doc.XZ_Plane, [""])
sketch7.MapMode = "FlatFace"
sketch7.AttachmentOffset = App.Placement(Vector(0, 0, -5), App.Rotation())
sketch7.addGeometry([
    Part.Circle(Vector(-52, -86, 0), Vector(0, 0, 1), 2),
    Part.Circle(Vector(-52, -64, 0), Vector(0, 0, 1), 2),
    Part.Circle(Vector(26, -86, 0), Vector(0, 0, 1), 2),
    Part.Circle(Vector(26, -64, 0), Vector(0, 0, 1), 2),
    Part.Circle(Vector(-52, 86, 0), Vector(0, 0, 1), 2),
    Part.Circle(Vector(-52, 64, 0), Vector(0, 0, 1), 2),
    Part.Circle(Vector(26, 64, 0), Vector(0, 0, 1), 2),
    Part.Circle(Vector(26, 86, 0), Vector(0, 0, 1), 2),
    Part.LineSegment(Vector(-38, -80, 0), Vector(-38, -70, 0)),
    Part.LineSegment(Vector(-38, -70, 0), Vector(12, -70, 0)),
    Part.LineSegment(Vector(12, -70, 0), Vector(12, -80, 0)),
    Part.LineSegment(Vector(12, -80, 0), Vector(-38, -80, 0)),
    Part.LineSegment(Vector(-38, 70, 0), Vector(-38, 80, 0)),
    Part.LineSegment(Vector(-38, 80, 0), Vector(12, 80, 0)),
    Part.LineSegment(Vector(12, 80, 0), Vector(12, 70, 0)),
    Part.LineSegment(Vector(12, 70, 0), Vector(-38, 70, 0)),
], False)
sketch7.addConstraint([
    Sketcher.Constraint("Coincident", 8, 2, 9, 1),
    Sketcher.Constraint("Coincident", 9, 2, 10, 1),
    Sketcher.Constraint("Coincident", 10, 2, 11, 1),
    Sketcher.Constraint("Coincident", 11, 2, 8, 1),
    Sketcher.Constraint("Coincident", 12, 2, 13, 1),
    Sketcher.Constraint("Coincident", 13, 2, 14, 1),
    Sketcher.Constraint("Coincident", 14, 2, 15, 1),
    Sketcher.Constraint("Coincident", 15, 2, 12, 1),
    Sketcher.Constraint("Vertical", 8),
    Sketcher.Constraint("Horizontal", 9),
    Sketcher.Constraint("Vertical", 10),
    Sketcher.Constraint("Horizontal", 11),
    Sketcher.Constraint("Vertical", 12),
    Sketcher.Constraint("Horizontal", 13),
    Sketcher.Constraint("Vertical", 14),
    Sketcher.Constraint("Horizontal", 15),
    Sketcher.Constraint("Equal", 0, 1),
    Sketcher.Constraint("Equal", 1, 2),
    Sketcher.Constraint("Equal", 2, 3),
    Sketcher.Constraint("Equal", 3, 4),
    Sketcher.Constraint("Equal", 4, 5),
    Sketcher.Constraint("Equal", 5, 6),
    Sketcher.Constraint("Equal", 6, 7),
    Sketcher.Constraint("Symmetric", 0, 3, 4, 3, -1),
    Sketcher.Constraint("Symmetric", 1, 3, 5, 3, -1),
    Sketcher.Constraint("Symmetric", 3, 3, 6, 3, -1),
    Sketcher.Constraint("Symmetric", 2, 3, 7, 3, -1),
    Sketcher.Constraint("Symmetric", 11, 2, 12, 2, -1),
    Sketcher.Constraint("Symmetric", 9, 2, 14, 2, -1),
    Sketcher.Constraint("Horizontal", 0, 3, 2, 3),
    Sketcher.Constraint("Horizontal", 1, 3, 3, 3),
    Sketcher.Constraint("Vertical", 0, 3, 1, 3),
    Sketcher.Constraint("Vertical", 2, 3, 3, 3),
    Sketcher.Constraint("Diameter", 0, Q("4 mm")),
    Sketcher.Constraint("DistanceX", 9, 1, 9, 2, Q("50 mm")),
    Sketcher.Constraint("DistanceY", 8, 1, 8, 2, Q("10 mm")),
    Sketcher.Constraint("DistanceX", 0, 3, -1, 1, Q("52 mm")),
    Sketcher.Constraint("DistanceY", 0, 3, -1, 1, Q("86 mm")),
    Sketcher.Constraint("DistanceY", 1, 3, -1, 1, Q("64 mm")),
    Sketcher.Constraint("DistanceX", -1, 1, 2, 3, Q("26 mm")),
    Sketcher.Constraint("DistanceX", 8, 2, -1, 1, Q("38 mm")),
    Sketcher.Constraint("DistanceY", 8, 2, -1, 1, Q("70 mm")),
])
pocket3 = doc.addObject("PartDesign::Pocket", "Pocket002")
body.addObject(pocket3)
pocket3.Profile = sketch7
pocket3.Type = "ThroughAll"
pocket3.Reversed = True

sketch8 = doc.addObject("Sketcher::SketchObject", "Sketch007")
body.addObject(sketch8)
sketch8.AttachmentSupport = (doc.XZ_Plane, [""])
sketch8.MapMode = "FlatFace"
sketch8.AttachmentOffset = App.Placement(Vector(0, 0, -5), App.Rotation())
sketch8.addGeometry([
    Part.Circle(Vector(-437.9, -30, 0), Vector(0, 0, 1), 2),
    Part.Circle(Vector(-235.6, -30, 0), Vector(0, 0, 1), 2),
    Part.Circle(Vector(-185.6, -30, 0), Vector(0, 0, 1), 2),
    Part.Circle(Vector(-185.6, 30, 0), Vector(0, 0, 1), 2),
    Part.Circle(Vector(-235.6, 30, 0), Vector(0, 0, 1), 2),
    Part.Circle(Vector(-437.9, 30, 0), Vector(0, 0, 1), 2),
], False)
sketch8.addConstraint([
    Sketcher.Constraint("Equal", 0, 1),
    Sketcher.Constraint("Equal", 1, 2),
    Sketcher.Constraint("Equal", 2, 3),
    Sketcher.Constraint("Equal", 3, 4),
    Sketcher.Constraint("Equal", 4, 5),
    Sketcher.Constraint("Symmetric", 2, 3, 3, 3, -1),
    Sketcher.Constraint("Symmetric", 1, 3, 4, 3, -1),
    Sketcher.Constraint("Symmetric", 0, 3, 5, 3, -1),
    Sketcher.Constraint("Horizontal", 0, 3, 1, 3),
    Sketcher.Constraint("Horizontal", 1, 3, 2, 3),
    Sketcher.Constraint("Diameter", 0, Q("4 mm")),
    Sketcher.Constraint("DistanceY", 0, 3, -1, 1, Q("30 mm")),
    Sketcher.Constraint("DistanceX", 1, 3, 2, 3, Q("50 mm")),
    Sketcher.Constraint("DistanceX", 0, 3, -1, 1, Q("437.91 mm")),
    Sketcher.Constraint("DistanceX", 1, 3, -1, 1, Q("235.58 mm")),
])
pocket4 = doc.addObject("PartDesign::Pocket", "Pocket003")
body.addObject(pocket4)
pocket4.Profile = sketch8
pocket4.Type = "ThroughAll"
pocket4.Reversed = True

sketch9 = doc.addObject("Sketcher::SketchObject", "Sketch008")
body.addObject(sketch9)
sketch9.AttachmentSupport = (doc.XZ_Plane, [""])
sketch9.MapMode = "FlatFace"
sketch9.AttachmentOffset = App.Placement(Vector(0, 0, -5), App.Rotation())
sketch9.addGeometry(Part.Circle(Vector(-73, 0, 0), Vector(0, 0, 1), 8), False)
sketch9.addConstraint([
    Sketcher.Constraint("PointOnObject", 0, 3, -1),
    Sketcher.Constraint("Diameter", 0, Q("15 mm")),
    Sketcher.Constraint("DistanceX", 0, 3, -1, 1, Q("73 mm")),
])
pocket5 = doc.addObject("PartDesign::Pocket", "Pocket004")
body.addObject(pocket5)
pocket5.Profile = sketch9
pocket5.Type = "ThroughAll"
pocket5.Reversed = True

doc.recompute()
